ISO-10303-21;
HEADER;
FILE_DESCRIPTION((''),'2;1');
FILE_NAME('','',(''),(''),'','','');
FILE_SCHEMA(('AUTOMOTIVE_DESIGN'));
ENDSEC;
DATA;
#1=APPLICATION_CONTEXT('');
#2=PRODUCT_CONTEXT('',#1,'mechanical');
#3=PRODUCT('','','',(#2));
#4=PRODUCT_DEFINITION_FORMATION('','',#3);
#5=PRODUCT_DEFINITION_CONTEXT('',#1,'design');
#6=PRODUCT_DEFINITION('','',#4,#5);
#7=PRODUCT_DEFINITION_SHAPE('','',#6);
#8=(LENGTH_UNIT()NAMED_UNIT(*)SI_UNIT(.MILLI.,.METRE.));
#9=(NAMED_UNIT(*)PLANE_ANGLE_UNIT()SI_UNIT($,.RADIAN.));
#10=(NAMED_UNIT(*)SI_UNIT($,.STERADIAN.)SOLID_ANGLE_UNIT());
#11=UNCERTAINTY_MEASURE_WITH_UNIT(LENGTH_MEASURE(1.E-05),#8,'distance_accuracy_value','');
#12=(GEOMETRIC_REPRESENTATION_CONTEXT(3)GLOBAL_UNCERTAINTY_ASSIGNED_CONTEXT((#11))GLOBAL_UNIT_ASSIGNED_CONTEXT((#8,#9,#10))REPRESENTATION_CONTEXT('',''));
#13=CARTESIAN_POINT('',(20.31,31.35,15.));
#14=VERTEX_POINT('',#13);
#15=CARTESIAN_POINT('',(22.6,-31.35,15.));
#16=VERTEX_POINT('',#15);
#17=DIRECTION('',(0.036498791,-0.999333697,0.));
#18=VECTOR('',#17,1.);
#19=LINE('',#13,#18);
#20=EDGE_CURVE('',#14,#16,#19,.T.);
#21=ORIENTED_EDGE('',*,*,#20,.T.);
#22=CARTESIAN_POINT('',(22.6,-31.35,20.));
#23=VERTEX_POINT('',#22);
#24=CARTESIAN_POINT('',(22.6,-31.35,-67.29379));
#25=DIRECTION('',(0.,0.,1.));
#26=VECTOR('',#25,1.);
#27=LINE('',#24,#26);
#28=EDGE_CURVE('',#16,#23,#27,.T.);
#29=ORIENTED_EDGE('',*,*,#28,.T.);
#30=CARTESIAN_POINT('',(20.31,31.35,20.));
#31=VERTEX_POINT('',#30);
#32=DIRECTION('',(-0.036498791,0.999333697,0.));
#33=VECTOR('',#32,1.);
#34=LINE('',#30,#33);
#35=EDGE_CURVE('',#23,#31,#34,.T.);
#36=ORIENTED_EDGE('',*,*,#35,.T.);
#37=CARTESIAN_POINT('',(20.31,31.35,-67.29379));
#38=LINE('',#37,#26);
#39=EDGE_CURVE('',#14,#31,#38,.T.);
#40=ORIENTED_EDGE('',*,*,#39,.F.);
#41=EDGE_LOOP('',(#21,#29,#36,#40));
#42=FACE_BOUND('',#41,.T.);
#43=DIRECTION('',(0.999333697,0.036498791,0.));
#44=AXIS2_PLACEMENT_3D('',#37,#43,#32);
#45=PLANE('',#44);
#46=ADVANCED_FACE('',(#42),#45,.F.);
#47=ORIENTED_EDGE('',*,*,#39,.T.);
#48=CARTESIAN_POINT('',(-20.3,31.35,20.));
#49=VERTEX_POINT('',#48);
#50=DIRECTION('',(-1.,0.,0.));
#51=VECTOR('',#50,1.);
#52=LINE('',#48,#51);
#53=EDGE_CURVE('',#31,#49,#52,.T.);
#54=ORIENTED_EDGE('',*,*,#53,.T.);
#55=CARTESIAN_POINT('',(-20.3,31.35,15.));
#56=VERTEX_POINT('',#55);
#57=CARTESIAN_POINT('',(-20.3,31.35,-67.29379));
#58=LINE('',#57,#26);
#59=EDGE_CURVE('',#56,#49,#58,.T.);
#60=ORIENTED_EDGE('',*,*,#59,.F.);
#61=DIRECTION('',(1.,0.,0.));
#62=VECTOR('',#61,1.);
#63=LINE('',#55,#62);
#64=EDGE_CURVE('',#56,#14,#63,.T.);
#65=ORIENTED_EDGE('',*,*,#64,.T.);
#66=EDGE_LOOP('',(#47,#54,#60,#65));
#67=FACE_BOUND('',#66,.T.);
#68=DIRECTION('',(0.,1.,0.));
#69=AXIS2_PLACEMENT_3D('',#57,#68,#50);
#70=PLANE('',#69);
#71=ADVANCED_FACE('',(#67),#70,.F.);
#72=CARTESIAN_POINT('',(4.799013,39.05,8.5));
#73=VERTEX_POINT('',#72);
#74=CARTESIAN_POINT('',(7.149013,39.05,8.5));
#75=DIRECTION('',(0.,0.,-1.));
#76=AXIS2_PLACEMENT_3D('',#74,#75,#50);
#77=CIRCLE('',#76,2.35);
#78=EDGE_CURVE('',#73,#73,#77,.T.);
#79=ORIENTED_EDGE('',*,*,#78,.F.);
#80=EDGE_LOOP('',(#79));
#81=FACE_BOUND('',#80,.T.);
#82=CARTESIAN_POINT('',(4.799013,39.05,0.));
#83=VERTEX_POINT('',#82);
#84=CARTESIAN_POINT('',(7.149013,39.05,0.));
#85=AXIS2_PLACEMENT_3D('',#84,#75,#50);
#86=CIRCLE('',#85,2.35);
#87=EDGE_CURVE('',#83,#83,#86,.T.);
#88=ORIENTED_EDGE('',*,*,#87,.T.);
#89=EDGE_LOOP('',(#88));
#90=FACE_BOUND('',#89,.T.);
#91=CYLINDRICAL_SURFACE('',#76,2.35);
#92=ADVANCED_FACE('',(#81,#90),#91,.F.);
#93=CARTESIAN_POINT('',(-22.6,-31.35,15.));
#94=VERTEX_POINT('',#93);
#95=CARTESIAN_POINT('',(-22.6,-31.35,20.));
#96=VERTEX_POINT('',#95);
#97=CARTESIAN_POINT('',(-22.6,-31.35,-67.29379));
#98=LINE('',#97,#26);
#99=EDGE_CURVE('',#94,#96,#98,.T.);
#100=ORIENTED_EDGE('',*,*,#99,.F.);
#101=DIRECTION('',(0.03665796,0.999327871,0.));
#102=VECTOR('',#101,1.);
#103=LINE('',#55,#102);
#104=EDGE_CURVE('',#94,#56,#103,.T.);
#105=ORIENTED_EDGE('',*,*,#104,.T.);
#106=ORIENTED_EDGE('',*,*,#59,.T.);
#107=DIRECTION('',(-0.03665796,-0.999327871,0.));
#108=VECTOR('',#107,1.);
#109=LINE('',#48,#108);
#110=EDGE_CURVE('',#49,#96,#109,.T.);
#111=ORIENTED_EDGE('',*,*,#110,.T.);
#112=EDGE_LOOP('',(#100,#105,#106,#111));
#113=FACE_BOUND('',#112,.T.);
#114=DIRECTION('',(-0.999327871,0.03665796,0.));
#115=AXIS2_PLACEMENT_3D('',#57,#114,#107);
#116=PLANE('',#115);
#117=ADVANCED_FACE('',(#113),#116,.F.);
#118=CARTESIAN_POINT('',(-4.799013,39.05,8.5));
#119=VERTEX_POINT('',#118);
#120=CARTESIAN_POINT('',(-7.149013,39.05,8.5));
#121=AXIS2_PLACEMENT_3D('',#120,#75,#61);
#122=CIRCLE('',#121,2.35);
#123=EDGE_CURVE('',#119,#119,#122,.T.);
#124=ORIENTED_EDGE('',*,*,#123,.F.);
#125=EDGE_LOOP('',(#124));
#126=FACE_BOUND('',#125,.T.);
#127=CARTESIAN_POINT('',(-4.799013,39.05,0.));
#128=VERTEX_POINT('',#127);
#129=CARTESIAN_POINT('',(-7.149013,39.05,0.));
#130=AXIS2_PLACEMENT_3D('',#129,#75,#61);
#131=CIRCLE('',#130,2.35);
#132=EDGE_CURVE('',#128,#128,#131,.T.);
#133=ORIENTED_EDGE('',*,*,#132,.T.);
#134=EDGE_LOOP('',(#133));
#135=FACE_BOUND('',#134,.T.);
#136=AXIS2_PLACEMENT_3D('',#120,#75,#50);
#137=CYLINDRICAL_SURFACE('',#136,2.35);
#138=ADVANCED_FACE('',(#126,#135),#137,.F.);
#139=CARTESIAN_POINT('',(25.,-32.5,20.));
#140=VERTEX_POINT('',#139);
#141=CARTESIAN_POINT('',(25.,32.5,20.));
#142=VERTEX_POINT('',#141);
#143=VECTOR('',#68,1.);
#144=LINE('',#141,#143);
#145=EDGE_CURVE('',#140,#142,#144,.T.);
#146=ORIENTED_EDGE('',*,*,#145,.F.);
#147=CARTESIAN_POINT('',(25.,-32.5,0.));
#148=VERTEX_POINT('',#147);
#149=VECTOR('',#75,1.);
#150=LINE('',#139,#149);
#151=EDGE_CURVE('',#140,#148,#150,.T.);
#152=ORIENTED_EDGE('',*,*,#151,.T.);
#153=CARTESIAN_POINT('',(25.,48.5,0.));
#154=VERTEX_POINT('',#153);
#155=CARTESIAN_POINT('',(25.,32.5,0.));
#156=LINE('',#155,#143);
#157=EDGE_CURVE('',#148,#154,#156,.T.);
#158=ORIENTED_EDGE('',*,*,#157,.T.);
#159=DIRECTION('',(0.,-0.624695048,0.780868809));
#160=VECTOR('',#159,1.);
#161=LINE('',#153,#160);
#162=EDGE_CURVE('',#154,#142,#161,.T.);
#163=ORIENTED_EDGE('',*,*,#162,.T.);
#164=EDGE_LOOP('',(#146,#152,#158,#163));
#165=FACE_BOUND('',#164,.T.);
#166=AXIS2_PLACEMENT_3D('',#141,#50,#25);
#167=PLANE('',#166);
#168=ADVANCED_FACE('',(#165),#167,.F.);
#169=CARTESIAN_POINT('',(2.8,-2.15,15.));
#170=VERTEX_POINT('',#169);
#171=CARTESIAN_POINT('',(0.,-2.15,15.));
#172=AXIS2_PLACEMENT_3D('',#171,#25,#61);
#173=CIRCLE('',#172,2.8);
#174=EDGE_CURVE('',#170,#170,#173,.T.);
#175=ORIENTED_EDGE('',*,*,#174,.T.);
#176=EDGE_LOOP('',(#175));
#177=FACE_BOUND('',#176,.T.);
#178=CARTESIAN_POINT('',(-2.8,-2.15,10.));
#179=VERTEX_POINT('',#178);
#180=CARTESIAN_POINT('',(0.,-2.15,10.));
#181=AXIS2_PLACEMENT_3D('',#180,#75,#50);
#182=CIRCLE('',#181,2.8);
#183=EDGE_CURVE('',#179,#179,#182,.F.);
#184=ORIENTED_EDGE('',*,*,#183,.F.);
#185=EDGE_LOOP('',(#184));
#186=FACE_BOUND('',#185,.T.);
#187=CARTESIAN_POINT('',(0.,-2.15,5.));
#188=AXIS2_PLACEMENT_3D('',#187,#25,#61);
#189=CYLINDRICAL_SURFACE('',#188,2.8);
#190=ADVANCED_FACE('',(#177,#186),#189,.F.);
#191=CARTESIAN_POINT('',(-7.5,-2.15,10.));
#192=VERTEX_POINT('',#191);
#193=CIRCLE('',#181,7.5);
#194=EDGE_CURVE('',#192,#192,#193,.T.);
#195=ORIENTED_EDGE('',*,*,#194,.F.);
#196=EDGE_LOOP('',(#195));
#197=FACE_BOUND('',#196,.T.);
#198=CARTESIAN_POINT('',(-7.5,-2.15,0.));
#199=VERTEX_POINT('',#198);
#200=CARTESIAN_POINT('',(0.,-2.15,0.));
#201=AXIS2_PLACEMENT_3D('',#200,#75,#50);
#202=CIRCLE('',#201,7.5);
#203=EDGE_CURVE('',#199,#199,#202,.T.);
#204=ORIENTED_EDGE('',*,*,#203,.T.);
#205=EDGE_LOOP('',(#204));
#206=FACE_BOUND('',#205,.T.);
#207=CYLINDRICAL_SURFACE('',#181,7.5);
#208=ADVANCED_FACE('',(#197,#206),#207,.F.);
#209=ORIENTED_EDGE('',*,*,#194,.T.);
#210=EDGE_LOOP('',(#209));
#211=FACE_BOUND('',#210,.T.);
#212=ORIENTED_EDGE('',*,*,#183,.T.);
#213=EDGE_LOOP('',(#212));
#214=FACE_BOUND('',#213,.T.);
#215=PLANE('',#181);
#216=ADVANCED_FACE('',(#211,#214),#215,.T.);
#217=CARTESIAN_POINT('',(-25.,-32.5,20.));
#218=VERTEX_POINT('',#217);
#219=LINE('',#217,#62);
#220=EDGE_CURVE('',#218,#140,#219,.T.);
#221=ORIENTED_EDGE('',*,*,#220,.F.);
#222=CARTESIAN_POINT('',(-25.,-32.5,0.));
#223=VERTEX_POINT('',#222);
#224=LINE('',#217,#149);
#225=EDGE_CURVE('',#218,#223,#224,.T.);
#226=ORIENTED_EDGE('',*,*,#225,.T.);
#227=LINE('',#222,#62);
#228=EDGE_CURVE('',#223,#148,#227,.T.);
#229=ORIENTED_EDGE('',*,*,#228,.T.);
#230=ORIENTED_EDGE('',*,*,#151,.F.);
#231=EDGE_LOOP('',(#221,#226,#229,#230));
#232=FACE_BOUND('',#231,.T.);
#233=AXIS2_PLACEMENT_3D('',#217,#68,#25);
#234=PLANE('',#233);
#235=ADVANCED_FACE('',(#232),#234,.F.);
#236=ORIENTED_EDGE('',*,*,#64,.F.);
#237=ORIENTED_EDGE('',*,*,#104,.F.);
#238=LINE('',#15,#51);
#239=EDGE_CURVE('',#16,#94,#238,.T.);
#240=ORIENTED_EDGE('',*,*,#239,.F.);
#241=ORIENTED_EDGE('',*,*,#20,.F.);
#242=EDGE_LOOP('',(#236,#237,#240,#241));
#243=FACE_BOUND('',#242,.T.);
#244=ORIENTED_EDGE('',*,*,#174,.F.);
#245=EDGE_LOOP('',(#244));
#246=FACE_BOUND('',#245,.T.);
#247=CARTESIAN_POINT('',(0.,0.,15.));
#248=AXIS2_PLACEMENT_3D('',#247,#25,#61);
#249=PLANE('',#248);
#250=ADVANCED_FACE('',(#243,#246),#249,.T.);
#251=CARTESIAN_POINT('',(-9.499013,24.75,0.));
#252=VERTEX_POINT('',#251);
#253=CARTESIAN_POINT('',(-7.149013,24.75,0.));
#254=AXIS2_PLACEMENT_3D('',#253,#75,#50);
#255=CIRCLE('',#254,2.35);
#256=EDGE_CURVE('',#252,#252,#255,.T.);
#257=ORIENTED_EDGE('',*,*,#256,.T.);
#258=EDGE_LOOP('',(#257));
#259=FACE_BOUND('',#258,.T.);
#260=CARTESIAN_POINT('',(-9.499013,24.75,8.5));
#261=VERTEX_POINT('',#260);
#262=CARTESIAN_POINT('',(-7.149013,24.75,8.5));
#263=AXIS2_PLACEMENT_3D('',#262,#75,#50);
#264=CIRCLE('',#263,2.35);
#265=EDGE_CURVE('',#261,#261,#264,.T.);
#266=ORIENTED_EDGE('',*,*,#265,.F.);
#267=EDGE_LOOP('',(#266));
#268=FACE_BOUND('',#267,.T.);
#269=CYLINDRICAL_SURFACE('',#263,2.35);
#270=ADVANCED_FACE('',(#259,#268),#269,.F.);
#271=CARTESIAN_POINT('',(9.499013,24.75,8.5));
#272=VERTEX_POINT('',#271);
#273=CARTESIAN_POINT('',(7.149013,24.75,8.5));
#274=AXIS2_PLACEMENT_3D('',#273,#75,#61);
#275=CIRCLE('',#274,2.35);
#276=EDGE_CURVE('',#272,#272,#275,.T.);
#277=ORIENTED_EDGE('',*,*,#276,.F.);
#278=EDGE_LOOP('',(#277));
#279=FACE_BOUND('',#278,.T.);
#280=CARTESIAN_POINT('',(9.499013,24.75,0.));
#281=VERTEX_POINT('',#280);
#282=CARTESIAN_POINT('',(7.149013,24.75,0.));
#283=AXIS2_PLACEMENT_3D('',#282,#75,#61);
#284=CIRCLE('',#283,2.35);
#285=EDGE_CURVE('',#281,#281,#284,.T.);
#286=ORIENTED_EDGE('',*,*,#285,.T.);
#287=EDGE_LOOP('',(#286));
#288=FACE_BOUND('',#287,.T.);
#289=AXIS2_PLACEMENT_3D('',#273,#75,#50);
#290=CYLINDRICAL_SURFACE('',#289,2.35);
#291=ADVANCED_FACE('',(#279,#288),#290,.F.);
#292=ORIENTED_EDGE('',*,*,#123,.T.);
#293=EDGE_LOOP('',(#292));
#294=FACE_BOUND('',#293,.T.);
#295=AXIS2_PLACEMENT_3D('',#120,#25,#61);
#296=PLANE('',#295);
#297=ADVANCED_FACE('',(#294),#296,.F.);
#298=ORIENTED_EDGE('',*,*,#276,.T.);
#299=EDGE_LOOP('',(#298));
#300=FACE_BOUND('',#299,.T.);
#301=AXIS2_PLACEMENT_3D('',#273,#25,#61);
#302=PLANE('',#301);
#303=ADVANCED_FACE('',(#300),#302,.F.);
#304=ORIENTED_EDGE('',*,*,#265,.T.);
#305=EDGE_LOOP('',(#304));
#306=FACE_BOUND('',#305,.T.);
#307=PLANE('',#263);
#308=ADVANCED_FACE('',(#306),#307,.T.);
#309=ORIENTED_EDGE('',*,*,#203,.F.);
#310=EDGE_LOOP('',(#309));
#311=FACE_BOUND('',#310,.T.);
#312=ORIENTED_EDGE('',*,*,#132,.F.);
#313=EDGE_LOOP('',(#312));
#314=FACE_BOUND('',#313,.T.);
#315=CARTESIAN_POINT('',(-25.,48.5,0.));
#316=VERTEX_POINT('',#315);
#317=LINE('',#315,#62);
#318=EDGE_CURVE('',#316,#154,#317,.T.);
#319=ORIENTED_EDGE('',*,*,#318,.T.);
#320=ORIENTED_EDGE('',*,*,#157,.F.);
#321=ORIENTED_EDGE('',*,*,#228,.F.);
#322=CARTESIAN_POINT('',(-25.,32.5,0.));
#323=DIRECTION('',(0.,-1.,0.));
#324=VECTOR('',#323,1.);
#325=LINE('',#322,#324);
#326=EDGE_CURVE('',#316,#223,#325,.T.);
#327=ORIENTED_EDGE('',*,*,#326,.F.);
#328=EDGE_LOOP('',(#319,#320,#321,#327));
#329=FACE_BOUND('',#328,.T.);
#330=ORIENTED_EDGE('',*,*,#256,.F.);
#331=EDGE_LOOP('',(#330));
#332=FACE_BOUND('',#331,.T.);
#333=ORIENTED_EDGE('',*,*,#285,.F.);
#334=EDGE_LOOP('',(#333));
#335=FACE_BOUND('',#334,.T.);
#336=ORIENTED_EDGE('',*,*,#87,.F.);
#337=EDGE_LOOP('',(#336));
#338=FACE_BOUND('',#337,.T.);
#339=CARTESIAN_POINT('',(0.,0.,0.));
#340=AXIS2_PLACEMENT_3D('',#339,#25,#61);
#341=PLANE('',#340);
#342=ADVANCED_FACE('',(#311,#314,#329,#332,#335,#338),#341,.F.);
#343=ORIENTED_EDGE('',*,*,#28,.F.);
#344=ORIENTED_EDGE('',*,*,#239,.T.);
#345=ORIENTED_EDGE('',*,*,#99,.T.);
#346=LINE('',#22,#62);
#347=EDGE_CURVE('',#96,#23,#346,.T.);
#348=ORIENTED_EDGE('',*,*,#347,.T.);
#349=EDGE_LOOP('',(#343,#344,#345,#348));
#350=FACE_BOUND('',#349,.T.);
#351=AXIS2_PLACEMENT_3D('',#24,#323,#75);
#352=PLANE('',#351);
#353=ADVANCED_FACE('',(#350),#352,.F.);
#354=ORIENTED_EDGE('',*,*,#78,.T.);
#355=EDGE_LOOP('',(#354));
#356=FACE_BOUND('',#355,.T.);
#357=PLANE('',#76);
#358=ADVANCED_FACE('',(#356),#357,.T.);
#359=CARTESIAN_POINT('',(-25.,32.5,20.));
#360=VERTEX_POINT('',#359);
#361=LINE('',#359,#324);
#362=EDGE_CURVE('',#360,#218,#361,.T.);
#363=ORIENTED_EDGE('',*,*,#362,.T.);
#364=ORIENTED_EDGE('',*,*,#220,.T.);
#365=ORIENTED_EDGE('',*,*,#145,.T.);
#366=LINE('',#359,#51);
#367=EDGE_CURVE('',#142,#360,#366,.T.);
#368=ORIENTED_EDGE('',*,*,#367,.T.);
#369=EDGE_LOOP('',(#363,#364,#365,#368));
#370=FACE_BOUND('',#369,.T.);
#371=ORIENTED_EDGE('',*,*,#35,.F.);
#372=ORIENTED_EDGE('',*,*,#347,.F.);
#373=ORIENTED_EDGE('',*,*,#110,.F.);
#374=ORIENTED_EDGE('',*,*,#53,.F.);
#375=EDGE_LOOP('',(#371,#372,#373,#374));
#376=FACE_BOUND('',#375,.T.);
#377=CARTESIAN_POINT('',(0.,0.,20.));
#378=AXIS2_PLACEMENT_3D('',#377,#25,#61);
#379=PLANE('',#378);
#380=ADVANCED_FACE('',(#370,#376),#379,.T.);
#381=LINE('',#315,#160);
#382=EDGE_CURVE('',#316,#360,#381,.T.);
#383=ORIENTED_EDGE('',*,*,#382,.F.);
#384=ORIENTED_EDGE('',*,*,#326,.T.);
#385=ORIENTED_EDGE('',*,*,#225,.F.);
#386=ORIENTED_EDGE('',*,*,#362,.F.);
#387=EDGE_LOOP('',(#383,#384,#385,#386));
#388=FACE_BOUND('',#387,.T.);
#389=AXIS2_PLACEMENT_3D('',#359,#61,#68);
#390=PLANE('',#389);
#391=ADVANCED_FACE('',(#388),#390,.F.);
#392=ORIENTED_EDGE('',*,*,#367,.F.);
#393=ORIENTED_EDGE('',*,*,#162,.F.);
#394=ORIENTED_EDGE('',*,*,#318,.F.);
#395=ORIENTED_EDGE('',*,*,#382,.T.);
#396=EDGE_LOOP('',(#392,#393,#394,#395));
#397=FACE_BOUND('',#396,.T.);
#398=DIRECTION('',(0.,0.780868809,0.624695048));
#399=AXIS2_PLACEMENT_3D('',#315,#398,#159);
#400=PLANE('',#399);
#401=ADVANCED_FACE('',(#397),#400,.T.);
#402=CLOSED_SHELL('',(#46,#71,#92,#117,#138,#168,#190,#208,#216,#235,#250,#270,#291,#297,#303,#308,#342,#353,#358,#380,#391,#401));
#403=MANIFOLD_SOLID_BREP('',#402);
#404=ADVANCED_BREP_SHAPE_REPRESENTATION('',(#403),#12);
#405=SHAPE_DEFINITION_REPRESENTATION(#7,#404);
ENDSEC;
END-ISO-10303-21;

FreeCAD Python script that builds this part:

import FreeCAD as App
import Part
import Sketcher
from FreeCAD import Vector


def add_polygon(sketch, points):
    """Adds a closed chain of lines whose ends are joined by coincident constraints."""
    first, n = sketch.GeometryCount, len(points)
    for a, b in zip(points, points[1:] + points[:1]):
        sketch.addGeometry(Part.LineSegment(App.Vector(*a, 0), App.Vector(*b, 0)), False)
    for i in range(n):
        sketch.addConstraint(Sketcher.Constraint("Coincident", first + i, 2, first + (i + 1) % n, 1))

doc = App.newDocument("Part")
body = doc.addObject("PartDesign::Body", "Body")

sketch1 = body.newObject("Sketcher::SketchObject", "Sketch")
sketch1.AttachmentSupport = (doc.getObject("XY_Plane"), [""])
sketch1.MapMode = "FlatFace"
add_polygon(sketch1, [(-25, 32), (-25, -32), (25, -32), (25, 32)])
sketch1.addConstraint([
    Sketcher.Constraint("Vertical", 0),
    Sketcher.Constraint("Horizontal", 1),
    Sketcher.Constraint("Vertical", 2),
    Sketcher.Constraint("Horizontal", 3),
    Sketcher.Constraint("Symmetric", 0, 2, 2, 2, -1, 1),
    Sketcher.Constraint("DistanceX", 1, 1, 1, 2, 50.0),
    Sketcher.Constraint("DistanceY", 0, 2, 0, 1, 65.0),
])
pad1 = body.newObject("PartDesign::Pad", "Pad")
pad1.Profile = sketch1
pad1.Length = 20

sketch2 = body.newObject("Sketcher::SketchObject", "Sketch001")
sketch2.AttachmentSupport = (doc.getObject("YZ_Plane"), [""])
sketch2.MapMode = "FlatFace"
sketch2.AttachmentOffset = App.Placement(Vector(0, 0, 25), App.Rotation())
add_polygon(sketch2, [(32, 0), (48, 0), (32, 20)])
sketch2.addConstraint([
    Sketcher.Constraint("Horizontal", 0),
    Sketcher.Constraint("Vertical", 2),
    Sketcher.Constraint("PointOnObject", 0, 2, -1),
    Sketcher.Constraint("DistanceX", 0, 1, 0, 2, 16.0),
    Sketcher.Constraint("DistanceY", 2, 2, 2, 1, 20.0),
    Sketcher.Constraint("DistanceX", -1, 1, 0, 2, 48.5),
])
pad2 = body.newObject("PartDesign::Pad", "Pad001")
pad2.Profile = sketch2
pad2.Length = 50
pad2.Reversed = True

sketch3 = body.newObject("Sketcher::SketchObject", "Sketch002")
sketch3.AttachmentSupport = (doc.getObject("XY_Plane"), [""])
sketch3.MapMode = "FlatFace"
sketch3.AttachmentOffset = App.Placement(Vector(0, 0, 20), App.Rotation())
add_polygon(sketch3, [(20, 31), (-20, 31), (-23, -31), (23, -31)])
sketch3.addConstraint([
    Sketcher.Constraint("Horizontal", 0),
    Sketcher.Constraint("Horizontal", 2),
    Sketcher.Constraint("DistanceX", 2, 1, 2, 2, 45.2),
    Sketcher.Constraint("DistanceX", 0, 2, 0, 1, 40.61),
    Sketcher.Constraint("DistanceX", 0, 2, -1, 1, 20.3),
    Sketcher.Constraint("DistanceX", 1, 2, -1, 1, 22.6),
    Sketcher.Constraint("DistanceY", 1, 2, 0, 2, 62.7),
    Sketcher.Constraint("DistanceY", -1, 1, 0, 2, 31.35),
])
pocket1 = body.newObject("PartDesign::Pocket", "Pocket")
pocket1.Profile = sketch3
pocket1.Length = 5

sketch4 = body.newObject("Sketcher::SketchObject", "Sketch003")
sketch4.AttachmentSupport = (doc.getObject("XY_Plane"), [""])
sketch4.MapMode = "FlatFace"
sketch4.addGeometry([
    Part.Circle(Vector(-7.1, 24.8, 0), Vector(0, 0, 1), 2.4),
    Part.Circle(Vector(7.1, 24.8, 0), Vector(0, 0, 1), 2.4),
    Part.Circle(Vector(-7.1, 39, 0), Vector(0, 0, 1), 2.4),
    Part.Circle(Vector(7.1, 39, 0), Vector(0, 0, 1), 2.4),
], False)
sketch4.addConstraint([
    Sketcher.Constraint("Equal", 0, 1),
    Sketcher.Constraint("Equal", 1, 2),
    Sketcher.Constraint("Equal", 2, 3),
    Sketcher.Constraint("Symmetric", 0, 3, 1, 3, -2),
    Sketcher.Constraint("Symmetric", 2, 3, 3, 3, -2),
    Sketcher.Constraint("Vertical", 0, 3, 2, 3),
    Sketcher.Constraint("Diameter", 0, 4.7),
    Sketcher.Constraint("DistanceY", 0, 3, 2, 3, 14.3),
    Sketcher.Constraint("DistanceY", -1, 1, 0, 3, 24.75),
    Sketcher.Constraint("DistanceX", 0, 3, -1, 1, 7.149013),
])
pocket2 = body.newObject("PartDesign::Pocket", "Pocket001")
pocket2.Profile = sketch4
pocket2.Length = 8.5
pocket2.Reversed = True

sketch5 = body.newObject("Sketcher::SketchObject", "Sketch004")
sketch5.AttachmentSupport = (doc.getObject("XY_Plane"), [""])
sketch5.MapMode = "FlatFace"
sketch5.AttachmentOffset = App.Placement(Vector(0, 0, 15), App.Rotation())
sketch5.addGeometry(Part.Circle(Vector(0, -2.1, 0), Vector(0, 0, 1), 2.8), False)
sketch5.addConstraint([
    Sketcher.Constraint("PointOnObject", 0, 3, -2),
    Sketcher.Constraint("Diameter", 0, 5.6),
    Sketcher.Constraint("DistanceY", 0, 3, -1, 1, 2.15),
])
pocket3 = body.newObject("PartDesign::Pocket", "Pocket002")
pocket3.Profile = sketch5
pocket3.Length = 10

sketch6 = body.newObject("Sketcher::SketchObject", "Sketch005")
sketch6.AttachmentSupport = (doc.getObject("XY_Plane"), [""])
sketch6.MapMode = "FlatFace"
sketch6.addGeometry(Part.Circle(Vector(0, -2, 0), Vector(0, 0, 1), 8), False)
sketch6.addConstraint([
    Sketcher.Constraint("PointOnObject", 0, 3, -2),
    Sketcher.Constraint("Diameter", 0, 15.0),
    Sketcher.Constraint("DistanceY", 0, 3, -1, 1, 2.15),
])
pocket4 = body.newObject("PartDesign::Pocket", "Pocket003")
pocket4.Profile = sketch6
pocket4.Length = 10
pocket4.Reversed = True

doc.recompute()
